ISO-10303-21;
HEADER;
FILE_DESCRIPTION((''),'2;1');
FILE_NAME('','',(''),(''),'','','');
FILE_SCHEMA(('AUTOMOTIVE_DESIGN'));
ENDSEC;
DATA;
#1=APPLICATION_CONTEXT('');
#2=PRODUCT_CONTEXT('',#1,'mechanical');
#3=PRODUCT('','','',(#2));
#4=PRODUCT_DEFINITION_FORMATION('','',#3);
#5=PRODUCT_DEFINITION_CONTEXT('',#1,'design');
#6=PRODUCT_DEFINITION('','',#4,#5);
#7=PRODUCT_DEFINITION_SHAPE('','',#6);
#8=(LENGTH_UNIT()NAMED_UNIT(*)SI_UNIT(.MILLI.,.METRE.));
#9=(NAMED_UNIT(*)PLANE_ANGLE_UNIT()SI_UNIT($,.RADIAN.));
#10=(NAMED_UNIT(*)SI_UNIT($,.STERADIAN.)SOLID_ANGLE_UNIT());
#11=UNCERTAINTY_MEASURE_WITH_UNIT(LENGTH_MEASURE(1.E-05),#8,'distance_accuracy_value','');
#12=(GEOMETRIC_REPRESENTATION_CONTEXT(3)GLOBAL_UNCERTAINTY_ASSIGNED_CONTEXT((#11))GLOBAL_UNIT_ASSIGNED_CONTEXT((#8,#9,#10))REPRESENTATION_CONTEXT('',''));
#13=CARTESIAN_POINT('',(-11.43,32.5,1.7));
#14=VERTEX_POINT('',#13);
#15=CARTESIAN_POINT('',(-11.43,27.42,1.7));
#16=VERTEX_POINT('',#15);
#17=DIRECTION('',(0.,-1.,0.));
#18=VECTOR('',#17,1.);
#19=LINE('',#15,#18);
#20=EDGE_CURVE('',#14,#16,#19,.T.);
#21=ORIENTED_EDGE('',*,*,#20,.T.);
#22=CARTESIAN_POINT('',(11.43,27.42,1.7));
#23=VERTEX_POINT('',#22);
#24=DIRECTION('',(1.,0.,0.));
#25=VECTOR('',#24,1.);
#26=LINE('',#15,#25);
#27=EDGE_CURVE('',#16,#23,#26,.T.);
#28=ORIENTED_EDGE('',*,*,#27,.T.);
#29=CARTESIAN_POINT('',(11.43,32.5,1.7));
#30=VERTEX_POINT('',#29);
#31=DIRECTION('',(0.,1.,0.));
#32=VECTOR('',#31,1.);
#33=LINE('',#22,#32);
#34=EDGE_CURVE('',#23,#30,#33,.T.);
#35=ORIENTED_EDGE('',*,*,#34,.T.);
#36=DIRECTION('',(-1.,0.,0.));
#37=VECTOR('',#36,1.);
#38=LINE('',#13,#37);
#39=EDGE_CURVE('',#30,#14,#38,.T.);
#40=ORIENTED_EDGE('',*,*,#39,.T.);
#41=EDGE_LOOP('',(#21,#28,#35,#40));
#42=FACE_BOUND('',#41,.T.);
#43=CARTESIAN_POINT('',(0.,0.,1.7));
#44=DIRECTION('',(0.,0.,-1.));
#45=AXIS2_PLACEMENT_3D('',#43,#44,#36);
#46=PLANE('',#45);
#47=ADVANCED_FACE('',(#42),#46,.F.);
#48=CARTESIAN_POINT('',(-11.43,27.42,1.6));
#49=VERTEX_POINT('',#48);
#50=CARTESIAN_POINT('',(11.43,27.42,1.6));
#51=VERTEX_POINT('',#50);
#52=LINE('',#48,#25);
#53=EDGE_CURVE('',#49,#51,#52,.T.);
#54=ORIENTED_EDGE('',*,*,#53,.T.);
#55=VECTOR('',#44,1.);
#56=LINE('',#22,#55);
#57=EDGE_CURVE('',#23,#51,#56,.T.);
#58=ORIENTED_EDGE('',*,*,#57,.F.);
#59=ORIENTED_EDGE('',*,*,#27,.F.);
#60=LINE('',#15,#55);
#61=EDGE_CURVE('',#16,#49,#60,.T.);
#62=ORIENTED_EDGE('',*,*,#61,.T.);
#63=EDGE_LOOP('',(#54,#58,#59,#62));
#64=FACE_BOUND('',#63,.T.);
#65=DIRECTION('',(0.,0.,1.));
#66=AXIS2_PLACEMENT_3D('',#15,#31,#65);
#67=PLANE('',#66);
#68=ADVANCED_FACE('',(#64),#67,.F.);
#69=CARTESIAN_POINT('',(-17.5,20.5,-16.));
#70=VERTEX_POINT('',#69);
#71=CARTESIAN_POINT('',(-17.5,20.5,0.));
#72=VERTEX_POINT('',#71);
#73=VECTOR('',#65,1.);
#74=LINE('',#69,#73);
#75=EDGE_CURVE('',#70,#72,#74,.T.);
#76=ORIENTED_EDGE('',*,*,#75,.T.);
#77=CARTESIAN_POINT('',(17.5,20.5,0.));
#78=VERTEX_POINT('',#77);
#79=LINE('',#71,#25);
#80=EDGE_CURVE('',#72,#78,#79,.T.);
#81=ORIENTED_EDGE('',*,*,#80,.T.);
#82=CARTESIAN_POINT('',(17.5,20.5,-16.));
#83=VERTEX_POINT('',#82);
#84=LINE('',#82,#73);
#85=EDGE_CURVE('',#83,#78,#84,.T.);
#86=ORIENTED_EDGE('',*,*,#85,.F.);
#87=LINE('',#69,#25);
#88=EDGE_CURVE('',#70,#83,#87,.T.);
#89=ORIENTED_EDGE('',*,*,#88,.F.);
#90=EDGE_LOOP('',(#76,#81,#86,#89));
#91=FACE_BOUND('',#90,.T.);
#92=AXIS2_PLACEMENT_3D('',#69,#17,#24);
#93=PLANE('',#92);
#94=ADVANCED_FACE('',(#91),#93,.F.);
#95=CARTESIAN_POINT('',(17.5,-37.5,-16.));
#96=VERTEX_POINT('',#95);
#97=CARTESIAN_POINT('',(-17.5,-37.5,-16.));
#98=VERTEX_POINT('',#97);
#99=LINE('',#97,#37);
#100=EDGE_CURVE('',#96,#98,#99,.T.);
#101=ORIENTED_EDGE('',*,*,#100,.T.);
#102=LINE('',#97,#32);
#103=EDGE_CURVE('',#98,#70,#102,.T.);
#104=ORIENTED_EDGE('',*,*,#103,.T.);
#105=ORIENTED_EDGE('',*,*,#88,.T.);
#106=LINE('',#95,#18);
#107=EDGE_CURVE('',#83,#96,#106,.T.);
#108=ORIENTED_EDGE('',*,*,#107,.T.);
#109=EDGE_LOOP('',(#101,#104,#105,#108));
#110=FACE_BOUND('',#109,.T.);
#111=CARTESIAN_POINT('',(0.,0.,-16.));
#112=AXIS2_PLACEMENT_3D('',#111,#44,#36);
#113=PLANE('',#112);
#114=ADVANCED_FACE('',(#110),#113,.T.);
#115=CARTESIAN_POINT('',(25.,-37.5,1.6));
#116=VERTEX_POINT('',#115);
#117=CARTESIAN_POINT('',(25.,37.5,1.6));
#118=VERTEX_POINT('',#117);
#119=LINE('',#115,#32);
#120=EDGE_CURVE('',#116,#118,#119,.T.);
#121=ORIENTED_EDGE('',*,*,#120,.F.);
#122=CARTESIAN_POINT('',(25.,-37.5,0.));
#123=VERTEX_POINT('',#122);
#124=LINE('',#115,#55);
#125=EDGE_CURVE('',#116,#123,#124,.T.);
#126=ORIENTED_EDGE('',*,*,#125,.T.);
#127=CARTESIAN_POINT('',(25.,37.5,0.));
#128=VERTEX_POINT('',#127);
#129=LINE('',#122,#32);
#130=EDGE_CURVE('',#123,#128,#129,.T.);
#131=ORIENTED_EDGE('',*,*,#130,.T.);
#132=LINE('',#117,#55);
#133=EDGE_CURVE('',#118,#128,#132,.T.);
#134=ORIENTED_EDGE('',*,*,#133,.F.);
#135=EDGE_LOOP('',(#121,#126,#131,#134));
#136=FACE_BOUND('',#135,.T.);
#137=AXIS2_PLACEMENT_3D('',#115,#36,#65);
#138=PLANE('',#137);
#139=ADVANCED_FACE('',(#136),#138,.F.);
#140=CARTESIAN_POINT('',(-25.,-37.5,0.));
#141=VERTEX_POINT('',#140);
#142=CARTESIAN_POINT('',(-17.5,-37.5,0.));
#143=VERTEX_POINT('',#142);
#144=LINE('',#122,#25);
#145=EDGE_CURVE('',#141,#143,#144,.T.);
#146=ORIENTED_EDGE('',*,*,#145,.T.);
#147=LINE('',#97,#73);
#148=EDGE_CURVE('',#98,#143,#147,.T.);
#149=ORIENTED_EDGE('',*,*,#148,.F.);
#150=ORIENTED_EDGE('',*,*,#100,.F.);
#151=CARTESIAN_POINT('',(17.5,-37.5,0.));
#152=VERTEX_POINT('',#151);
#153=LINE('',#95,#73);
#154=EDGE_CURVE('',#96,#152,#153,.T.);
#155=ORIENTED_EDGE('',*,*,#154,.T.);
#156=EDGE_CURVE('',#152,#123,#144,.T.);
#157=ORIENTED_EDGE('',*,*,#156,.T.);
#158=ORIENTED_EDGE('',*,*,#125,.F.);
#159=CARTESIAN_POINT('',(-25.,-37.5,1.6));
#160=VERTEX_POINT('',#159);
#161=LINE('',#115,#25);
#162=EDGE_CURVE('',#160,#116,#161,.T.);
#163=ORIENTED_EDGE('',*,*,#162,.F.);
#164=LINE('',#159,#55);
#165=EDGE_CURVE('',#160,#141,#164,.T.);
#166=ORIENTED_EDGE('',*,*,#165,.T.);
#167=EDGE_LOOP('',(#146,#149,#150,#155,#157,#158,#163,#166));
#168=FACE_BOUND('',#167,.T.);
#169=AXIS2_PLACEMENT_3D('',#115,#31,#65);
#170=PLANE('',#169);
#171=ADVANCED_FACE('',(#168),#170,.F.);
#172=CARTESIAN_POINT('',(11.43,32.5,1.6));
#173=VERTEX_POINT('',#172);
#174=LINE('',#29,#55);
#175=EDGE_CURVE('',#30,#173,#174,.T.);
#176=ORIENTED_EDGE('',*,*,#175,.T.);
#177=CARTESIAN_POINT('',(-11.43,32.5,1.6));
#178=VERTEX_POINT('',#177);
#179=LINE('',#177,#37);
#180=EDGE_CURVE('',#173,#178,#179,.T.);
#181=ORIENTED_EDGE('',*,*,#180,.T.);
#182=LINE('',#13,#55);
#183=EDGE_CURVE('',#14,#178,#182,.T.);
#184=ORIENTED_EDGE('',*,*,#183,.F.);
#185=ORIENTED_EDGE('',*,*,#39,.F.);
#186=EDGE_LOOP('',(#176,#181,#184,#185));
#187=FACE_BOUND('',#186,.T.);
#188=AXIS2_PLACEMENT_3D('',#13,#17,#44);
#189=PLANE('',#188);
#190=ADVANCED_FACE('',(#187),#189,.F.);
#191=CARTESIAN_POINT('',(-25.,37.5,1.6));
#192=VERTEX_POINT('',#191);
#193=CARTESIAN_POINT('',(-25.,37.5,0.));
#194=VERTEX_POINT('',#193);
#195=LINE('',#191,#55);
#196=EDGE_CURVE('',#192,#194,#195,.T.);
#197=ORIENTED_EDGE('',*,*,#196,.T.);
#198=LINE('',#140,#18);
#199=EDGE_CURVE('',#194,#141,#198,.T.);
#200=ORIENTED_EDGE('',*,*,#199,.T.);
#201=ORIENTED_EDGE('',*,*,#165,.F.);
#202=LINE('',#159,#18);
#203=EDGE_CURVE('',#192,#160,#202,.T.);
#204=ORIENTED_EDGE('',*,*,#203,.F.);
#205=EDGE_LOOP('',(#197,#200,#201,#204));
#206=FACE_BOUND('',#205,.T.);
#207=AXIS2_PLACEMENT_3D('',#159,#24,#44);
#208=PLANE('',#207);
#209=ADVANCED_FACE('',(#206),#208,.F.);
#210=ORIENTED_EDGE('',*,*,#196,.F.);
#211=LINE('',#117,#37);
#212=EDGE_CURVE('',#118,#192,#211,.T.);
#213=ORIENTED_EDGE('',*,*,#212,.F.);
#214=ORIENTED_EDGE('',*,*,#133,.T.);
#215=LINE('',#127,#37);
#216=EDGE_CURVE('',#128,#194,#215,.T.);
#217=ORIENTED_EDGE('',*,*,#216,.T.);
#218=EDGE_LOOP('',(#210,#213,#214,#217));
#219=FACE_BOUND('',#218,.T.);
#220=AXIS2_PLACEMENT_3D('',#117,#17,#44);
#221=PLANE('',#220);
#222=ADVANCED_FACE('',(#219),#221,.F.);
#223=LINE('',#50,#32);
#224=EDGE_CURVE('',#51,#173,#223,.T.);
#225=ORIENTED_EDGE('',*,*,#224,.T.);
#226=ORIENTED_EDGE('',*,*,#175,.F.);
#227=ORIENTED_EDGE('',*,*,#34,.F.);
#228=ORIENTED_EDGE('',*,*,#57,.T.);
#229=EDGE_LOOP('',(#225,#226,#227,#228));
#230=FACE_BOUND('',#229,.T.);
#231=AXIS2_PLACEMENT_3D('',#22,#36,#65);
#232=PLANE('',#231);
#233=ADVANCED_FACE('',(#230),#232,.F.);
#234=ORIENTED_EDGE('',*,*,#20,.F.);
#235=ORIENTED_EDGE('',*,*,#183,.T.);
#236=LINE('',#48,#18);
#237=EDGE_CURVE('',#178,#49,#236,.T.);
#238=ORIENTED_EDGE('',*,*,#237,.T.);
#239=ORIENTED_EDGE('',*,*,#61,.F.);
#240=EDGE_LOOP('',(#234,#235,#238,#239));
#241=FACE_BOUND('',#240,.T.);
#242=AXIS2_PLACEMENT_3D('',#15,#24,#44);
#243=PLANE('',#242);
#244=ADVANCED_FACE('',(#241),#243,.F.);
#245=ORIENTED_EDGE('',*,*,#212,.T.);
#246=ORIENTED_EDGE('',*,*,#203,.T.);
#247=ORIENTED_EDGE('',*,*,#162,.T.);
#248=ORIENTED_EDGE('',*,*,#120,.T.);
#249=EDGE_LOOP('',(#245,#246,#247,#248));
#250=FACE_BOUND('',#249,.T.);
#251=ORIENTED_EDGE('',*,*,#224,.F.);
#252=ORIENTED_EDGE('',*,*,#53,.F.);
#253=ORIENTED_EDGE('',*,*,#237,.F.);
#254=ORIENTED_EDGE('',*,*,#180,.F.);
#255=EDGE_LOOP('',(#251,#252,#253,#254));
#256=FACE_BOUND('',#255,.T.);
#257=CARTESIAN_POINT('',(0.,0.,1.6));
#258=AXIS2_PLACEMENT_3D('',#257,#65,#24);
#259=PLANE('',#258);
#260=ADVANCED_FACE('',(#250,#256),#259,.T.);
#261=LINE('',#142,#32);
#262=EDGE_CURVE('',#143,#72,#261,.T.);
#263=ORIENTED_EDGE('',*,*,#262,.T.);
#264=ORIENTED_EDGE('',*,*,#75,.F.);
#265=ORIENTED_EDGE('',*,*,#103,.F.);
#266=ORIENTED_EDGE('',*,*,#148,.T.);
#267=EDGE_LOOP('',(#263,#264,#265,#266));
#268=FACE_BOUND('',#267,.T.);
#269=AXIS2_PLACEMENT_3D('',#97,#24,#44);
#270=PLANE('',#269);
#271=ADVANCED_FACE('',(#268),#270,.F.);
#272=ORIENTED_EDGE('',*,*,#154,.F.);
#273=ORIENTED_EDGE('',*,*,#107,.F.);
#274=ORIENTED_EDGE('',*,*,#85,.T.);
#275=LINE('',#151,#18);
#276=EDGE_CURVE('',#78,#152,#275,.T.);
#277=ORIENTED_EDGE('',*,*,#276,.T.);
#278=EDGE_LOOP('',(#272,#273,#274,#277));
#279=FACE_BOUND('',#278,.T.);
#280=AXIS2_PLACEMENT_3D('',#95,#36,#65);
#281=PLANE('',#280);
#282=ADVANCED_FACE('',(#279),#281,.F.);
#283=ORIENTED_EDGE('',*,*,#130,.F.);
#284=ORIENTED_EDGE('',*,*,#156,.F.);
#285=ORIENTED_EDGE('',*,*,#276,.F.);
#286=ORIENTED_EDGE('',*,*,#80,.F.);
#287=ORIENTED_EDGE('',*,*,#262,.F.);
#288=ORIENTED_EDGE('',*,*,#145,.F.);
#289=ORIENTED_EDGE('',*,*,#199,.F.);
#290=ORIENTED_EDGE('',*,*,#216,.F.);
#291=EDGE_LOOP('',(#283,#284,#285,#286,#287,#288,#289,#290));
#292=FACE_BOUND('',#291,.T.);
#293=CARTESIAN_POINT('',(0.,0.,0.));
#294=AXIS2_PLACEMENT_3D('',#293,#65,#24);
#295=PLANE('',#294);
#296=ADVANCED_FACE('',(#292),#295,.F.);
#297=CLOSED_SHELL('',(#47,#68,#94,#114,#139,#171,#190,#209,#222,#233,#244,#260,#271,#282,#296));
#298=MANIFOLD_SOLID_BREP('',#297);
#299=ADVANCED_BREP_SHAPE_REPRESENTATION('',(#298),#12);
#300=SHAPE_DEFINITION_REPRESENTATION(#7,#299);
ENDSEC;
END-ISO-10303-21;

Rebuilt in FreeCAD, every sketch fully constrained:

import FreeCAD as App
import Part
import Sketcher
from FreeCAD import Vector
Q = App.Units.Quantity

doc = App.newDocument("Part")
body = doc.addObject("PartDesign::Body", "Body")

sketch1 = body.newObject("Sketcher::SketchObject", "Sketch")
sketch1.AttachmentSupport = (doc.getObject("XY_Plane"), [""])
sketch1.MapMode = "FlatFace"
sketch1.addGeometry(Part.LineSegment(Vector(-25, 38, 0), Vector(-25, -38, 0)), False)
sketch1.addGeometry(Part.LineSegment(Vector(-25, -38, 0), Vector(25, -38, 0)), False)
sketch1.addGeometry(Part.LineSegment(Vector(25, -38, 0), Vector(25, 38, 0)), False)
sketch1.addGeometry(Part.LineSegment(Vector(25, 38, 0), Vector(-25, 38, 0)), False)
sketch1.addConstraint(Sketcher.Constraint("Coincident", 0, 2, 1, 1))
sketch1.addConstraint(Sketcher.Constraint("Coincident", 1, 2, 2, 1))
sketch1.addConstraint(Sketcher.Constraint("Coincident", 2, 2, 3, 1))
sketch1.addConstraint(Sketcher.Constraint("Coincident", 3, 2, 0, 1))
sketch1.addConstraint(Sketcher.Constraint("Vertical", 0))
sketch1.addConstraint(Sketcher.Constraint("Horizontal", 1))
sketch1.addConstraint(Sketcher.Constraint("Vertical", 2))
sketch1.addConstraint(Sketcher.Constraint("Horizontal", 3))
sketch1.addConstraint(Sketcher.Constraint("Symmetric", 0, 2, 2, 2, -1, 1))
sketch1.addConstraint(Sketcher.Constraint("DistanceX", 1, 1, 1, 2, Q("50 mm")))
sketch1.addConstraint(Sketcher.Constraint("DistanceY", 0, 2, 0, 1, Q("75 mm")))
pad1 = body.newObject("PartDesign::Pad", "Pad")
pad1.Profile = sketch1
pad1.Length = 1.6

sketch2 = body.newObject("Sketcher::SketchObject", "Sketch001")
sketch2.AttachmentSupport = (doc.getObject("XY_Plane"), [""])
sketch2.MapMode = "FlatFace"
sketch2.AttachmentOffset = App.Placement(Vector(0, 0, 1.6), App.Rotation())
sketch2.addGeometry(Part.LineSegment(Vector(-11, 32, 0), Vector(-11, 27, 0)), False)
sketch2.addGeometry(Part.LineSegment(Vector(-11, 27, 0), Vector(11, 27, 0)), False)
sketch2.addGeometry(Part.LineSegment(Vector(11, 27, 0), Vector(11, 32, 0)), False)
sketch2.addGeometry(Part.LineSegment(Vector(11, 32, 0), Vector(-11, 32, 0)), False)
sketch2.addConstraint(Sketcher.Constraint("Coincident", 0, 2, 1, 1))
sketch2.addConstraint(Sketcher.Constraint("Coincident", 1, 2, 2, 1))
sketch2.addConstraint(Sketcher.Constraint("Coincident", 2, 2, 3, 1))
sketch2.addConstraint(Sketcher.Constraint("Coincident", 3, 2, 0, 1))
sketch2.addConstraint(Sketcher.Constraint("Vertical", 0))
sketch2.addConstraint(Sketcher.Constraint("Horizontal", 1))
sketch2.addConstraint(Sketcher.Constraint("Vertical", 2))
sketch2.addConstraint(Sketcher.Constraint("Horizontal", 3))
sketch2.addConstraint(Sketcher.Constraint("DistanceX", 1, 1, 1, 2, Q("22.86 mm")))
sketch2.addConstraint(Sketcher.Constraint("DistanceY", 0, 2, 0, 1, Q("5.08 mm")))
sketch2.addConstraint(Sketcher.Constraint("DistanceY", -1, 1, 2, 2, Q("32.5 mm")))
sketch2.addConstraint(Sketcher.Constraint("DistanceX", 0, 2, -1, 1, Q("11.43 mm")))
pad2 = body.newObject("PartDesign::Pad", "Pad001")
pad2.Profile = sketch2
pad2.Length = 0.1

sketch3 = body.newObject("Sketcher::SketchObject", "Sketch002")
sketch3.AttachmentSupport = (doc.getObject("XY_Plane"), [""])
sketch3.MapMode = "FlatFace"
sketch3.addGeometry(Part.LineSegment(Vector(18, 20, 0), Vector(18, -38, 0)), False)
sketch3.addGeometry(Part.LineSegment(Vector(18, -38, 0), Vector(-18, -38, 0)), False)
sketch3.addGeometry(Part.LineSegment(Vector(-18, -38, 0), Vector(-18, 20, 0)), False)
sketch3.addGeometry(Part.LineSegment(Vector(-18, 20, 0), Vector(18, 20, 0)), False)
sketch3.addConstraint(Sketcher.Constraint("Coincident", 0, 2, 1, 1))
sketch3.addConstraint(Sketcher.Constraint("Coincident", 1, 2, 2, 1))
sketch3.addConstraint(Sketcher.Constraint("Coincident", 2, 2, 3, 1))
sketch3.addConstraint(Sketcher.Constraint("Coincident", 3, 2, 0, 1))
sketch3.addConstraint(Sketcher.Constraint("Vertical", 0))
sketch3.addConstraint(Sketcher.Constraint("Horizontal", 1))
sketch3.addConstraint(Sketcher.Constraint("Vertical", 2))
sketch3.addConstraint(Sketcher.Constraint("Horizontal", 3))
sketch3.addConstraint(Sketcher.Constraint("DistanceX", 1, 2, 1, 1, Q("35 mm")))
sketch3.addConstraint(Sketcher.Constraint("DistanceY", 0, 2, 0, 1, Q("58 mm")))
sketch3.addConstraint(Sketcher.Constraint("DistanceX", -1, 1, 0, 2, Q("17.5 mm")))
sketch3.addConstraint(Sketcher.Constraint("DistanceY", 0, 2, -1, 1, Q("37.5 mm")))
pad3 = body.newObject("PartDesign::Pad", "Pad002")
pad3.Profile = sketch3
pad3.Length = 16
pad3.Reversed = True

doc.recompute()
